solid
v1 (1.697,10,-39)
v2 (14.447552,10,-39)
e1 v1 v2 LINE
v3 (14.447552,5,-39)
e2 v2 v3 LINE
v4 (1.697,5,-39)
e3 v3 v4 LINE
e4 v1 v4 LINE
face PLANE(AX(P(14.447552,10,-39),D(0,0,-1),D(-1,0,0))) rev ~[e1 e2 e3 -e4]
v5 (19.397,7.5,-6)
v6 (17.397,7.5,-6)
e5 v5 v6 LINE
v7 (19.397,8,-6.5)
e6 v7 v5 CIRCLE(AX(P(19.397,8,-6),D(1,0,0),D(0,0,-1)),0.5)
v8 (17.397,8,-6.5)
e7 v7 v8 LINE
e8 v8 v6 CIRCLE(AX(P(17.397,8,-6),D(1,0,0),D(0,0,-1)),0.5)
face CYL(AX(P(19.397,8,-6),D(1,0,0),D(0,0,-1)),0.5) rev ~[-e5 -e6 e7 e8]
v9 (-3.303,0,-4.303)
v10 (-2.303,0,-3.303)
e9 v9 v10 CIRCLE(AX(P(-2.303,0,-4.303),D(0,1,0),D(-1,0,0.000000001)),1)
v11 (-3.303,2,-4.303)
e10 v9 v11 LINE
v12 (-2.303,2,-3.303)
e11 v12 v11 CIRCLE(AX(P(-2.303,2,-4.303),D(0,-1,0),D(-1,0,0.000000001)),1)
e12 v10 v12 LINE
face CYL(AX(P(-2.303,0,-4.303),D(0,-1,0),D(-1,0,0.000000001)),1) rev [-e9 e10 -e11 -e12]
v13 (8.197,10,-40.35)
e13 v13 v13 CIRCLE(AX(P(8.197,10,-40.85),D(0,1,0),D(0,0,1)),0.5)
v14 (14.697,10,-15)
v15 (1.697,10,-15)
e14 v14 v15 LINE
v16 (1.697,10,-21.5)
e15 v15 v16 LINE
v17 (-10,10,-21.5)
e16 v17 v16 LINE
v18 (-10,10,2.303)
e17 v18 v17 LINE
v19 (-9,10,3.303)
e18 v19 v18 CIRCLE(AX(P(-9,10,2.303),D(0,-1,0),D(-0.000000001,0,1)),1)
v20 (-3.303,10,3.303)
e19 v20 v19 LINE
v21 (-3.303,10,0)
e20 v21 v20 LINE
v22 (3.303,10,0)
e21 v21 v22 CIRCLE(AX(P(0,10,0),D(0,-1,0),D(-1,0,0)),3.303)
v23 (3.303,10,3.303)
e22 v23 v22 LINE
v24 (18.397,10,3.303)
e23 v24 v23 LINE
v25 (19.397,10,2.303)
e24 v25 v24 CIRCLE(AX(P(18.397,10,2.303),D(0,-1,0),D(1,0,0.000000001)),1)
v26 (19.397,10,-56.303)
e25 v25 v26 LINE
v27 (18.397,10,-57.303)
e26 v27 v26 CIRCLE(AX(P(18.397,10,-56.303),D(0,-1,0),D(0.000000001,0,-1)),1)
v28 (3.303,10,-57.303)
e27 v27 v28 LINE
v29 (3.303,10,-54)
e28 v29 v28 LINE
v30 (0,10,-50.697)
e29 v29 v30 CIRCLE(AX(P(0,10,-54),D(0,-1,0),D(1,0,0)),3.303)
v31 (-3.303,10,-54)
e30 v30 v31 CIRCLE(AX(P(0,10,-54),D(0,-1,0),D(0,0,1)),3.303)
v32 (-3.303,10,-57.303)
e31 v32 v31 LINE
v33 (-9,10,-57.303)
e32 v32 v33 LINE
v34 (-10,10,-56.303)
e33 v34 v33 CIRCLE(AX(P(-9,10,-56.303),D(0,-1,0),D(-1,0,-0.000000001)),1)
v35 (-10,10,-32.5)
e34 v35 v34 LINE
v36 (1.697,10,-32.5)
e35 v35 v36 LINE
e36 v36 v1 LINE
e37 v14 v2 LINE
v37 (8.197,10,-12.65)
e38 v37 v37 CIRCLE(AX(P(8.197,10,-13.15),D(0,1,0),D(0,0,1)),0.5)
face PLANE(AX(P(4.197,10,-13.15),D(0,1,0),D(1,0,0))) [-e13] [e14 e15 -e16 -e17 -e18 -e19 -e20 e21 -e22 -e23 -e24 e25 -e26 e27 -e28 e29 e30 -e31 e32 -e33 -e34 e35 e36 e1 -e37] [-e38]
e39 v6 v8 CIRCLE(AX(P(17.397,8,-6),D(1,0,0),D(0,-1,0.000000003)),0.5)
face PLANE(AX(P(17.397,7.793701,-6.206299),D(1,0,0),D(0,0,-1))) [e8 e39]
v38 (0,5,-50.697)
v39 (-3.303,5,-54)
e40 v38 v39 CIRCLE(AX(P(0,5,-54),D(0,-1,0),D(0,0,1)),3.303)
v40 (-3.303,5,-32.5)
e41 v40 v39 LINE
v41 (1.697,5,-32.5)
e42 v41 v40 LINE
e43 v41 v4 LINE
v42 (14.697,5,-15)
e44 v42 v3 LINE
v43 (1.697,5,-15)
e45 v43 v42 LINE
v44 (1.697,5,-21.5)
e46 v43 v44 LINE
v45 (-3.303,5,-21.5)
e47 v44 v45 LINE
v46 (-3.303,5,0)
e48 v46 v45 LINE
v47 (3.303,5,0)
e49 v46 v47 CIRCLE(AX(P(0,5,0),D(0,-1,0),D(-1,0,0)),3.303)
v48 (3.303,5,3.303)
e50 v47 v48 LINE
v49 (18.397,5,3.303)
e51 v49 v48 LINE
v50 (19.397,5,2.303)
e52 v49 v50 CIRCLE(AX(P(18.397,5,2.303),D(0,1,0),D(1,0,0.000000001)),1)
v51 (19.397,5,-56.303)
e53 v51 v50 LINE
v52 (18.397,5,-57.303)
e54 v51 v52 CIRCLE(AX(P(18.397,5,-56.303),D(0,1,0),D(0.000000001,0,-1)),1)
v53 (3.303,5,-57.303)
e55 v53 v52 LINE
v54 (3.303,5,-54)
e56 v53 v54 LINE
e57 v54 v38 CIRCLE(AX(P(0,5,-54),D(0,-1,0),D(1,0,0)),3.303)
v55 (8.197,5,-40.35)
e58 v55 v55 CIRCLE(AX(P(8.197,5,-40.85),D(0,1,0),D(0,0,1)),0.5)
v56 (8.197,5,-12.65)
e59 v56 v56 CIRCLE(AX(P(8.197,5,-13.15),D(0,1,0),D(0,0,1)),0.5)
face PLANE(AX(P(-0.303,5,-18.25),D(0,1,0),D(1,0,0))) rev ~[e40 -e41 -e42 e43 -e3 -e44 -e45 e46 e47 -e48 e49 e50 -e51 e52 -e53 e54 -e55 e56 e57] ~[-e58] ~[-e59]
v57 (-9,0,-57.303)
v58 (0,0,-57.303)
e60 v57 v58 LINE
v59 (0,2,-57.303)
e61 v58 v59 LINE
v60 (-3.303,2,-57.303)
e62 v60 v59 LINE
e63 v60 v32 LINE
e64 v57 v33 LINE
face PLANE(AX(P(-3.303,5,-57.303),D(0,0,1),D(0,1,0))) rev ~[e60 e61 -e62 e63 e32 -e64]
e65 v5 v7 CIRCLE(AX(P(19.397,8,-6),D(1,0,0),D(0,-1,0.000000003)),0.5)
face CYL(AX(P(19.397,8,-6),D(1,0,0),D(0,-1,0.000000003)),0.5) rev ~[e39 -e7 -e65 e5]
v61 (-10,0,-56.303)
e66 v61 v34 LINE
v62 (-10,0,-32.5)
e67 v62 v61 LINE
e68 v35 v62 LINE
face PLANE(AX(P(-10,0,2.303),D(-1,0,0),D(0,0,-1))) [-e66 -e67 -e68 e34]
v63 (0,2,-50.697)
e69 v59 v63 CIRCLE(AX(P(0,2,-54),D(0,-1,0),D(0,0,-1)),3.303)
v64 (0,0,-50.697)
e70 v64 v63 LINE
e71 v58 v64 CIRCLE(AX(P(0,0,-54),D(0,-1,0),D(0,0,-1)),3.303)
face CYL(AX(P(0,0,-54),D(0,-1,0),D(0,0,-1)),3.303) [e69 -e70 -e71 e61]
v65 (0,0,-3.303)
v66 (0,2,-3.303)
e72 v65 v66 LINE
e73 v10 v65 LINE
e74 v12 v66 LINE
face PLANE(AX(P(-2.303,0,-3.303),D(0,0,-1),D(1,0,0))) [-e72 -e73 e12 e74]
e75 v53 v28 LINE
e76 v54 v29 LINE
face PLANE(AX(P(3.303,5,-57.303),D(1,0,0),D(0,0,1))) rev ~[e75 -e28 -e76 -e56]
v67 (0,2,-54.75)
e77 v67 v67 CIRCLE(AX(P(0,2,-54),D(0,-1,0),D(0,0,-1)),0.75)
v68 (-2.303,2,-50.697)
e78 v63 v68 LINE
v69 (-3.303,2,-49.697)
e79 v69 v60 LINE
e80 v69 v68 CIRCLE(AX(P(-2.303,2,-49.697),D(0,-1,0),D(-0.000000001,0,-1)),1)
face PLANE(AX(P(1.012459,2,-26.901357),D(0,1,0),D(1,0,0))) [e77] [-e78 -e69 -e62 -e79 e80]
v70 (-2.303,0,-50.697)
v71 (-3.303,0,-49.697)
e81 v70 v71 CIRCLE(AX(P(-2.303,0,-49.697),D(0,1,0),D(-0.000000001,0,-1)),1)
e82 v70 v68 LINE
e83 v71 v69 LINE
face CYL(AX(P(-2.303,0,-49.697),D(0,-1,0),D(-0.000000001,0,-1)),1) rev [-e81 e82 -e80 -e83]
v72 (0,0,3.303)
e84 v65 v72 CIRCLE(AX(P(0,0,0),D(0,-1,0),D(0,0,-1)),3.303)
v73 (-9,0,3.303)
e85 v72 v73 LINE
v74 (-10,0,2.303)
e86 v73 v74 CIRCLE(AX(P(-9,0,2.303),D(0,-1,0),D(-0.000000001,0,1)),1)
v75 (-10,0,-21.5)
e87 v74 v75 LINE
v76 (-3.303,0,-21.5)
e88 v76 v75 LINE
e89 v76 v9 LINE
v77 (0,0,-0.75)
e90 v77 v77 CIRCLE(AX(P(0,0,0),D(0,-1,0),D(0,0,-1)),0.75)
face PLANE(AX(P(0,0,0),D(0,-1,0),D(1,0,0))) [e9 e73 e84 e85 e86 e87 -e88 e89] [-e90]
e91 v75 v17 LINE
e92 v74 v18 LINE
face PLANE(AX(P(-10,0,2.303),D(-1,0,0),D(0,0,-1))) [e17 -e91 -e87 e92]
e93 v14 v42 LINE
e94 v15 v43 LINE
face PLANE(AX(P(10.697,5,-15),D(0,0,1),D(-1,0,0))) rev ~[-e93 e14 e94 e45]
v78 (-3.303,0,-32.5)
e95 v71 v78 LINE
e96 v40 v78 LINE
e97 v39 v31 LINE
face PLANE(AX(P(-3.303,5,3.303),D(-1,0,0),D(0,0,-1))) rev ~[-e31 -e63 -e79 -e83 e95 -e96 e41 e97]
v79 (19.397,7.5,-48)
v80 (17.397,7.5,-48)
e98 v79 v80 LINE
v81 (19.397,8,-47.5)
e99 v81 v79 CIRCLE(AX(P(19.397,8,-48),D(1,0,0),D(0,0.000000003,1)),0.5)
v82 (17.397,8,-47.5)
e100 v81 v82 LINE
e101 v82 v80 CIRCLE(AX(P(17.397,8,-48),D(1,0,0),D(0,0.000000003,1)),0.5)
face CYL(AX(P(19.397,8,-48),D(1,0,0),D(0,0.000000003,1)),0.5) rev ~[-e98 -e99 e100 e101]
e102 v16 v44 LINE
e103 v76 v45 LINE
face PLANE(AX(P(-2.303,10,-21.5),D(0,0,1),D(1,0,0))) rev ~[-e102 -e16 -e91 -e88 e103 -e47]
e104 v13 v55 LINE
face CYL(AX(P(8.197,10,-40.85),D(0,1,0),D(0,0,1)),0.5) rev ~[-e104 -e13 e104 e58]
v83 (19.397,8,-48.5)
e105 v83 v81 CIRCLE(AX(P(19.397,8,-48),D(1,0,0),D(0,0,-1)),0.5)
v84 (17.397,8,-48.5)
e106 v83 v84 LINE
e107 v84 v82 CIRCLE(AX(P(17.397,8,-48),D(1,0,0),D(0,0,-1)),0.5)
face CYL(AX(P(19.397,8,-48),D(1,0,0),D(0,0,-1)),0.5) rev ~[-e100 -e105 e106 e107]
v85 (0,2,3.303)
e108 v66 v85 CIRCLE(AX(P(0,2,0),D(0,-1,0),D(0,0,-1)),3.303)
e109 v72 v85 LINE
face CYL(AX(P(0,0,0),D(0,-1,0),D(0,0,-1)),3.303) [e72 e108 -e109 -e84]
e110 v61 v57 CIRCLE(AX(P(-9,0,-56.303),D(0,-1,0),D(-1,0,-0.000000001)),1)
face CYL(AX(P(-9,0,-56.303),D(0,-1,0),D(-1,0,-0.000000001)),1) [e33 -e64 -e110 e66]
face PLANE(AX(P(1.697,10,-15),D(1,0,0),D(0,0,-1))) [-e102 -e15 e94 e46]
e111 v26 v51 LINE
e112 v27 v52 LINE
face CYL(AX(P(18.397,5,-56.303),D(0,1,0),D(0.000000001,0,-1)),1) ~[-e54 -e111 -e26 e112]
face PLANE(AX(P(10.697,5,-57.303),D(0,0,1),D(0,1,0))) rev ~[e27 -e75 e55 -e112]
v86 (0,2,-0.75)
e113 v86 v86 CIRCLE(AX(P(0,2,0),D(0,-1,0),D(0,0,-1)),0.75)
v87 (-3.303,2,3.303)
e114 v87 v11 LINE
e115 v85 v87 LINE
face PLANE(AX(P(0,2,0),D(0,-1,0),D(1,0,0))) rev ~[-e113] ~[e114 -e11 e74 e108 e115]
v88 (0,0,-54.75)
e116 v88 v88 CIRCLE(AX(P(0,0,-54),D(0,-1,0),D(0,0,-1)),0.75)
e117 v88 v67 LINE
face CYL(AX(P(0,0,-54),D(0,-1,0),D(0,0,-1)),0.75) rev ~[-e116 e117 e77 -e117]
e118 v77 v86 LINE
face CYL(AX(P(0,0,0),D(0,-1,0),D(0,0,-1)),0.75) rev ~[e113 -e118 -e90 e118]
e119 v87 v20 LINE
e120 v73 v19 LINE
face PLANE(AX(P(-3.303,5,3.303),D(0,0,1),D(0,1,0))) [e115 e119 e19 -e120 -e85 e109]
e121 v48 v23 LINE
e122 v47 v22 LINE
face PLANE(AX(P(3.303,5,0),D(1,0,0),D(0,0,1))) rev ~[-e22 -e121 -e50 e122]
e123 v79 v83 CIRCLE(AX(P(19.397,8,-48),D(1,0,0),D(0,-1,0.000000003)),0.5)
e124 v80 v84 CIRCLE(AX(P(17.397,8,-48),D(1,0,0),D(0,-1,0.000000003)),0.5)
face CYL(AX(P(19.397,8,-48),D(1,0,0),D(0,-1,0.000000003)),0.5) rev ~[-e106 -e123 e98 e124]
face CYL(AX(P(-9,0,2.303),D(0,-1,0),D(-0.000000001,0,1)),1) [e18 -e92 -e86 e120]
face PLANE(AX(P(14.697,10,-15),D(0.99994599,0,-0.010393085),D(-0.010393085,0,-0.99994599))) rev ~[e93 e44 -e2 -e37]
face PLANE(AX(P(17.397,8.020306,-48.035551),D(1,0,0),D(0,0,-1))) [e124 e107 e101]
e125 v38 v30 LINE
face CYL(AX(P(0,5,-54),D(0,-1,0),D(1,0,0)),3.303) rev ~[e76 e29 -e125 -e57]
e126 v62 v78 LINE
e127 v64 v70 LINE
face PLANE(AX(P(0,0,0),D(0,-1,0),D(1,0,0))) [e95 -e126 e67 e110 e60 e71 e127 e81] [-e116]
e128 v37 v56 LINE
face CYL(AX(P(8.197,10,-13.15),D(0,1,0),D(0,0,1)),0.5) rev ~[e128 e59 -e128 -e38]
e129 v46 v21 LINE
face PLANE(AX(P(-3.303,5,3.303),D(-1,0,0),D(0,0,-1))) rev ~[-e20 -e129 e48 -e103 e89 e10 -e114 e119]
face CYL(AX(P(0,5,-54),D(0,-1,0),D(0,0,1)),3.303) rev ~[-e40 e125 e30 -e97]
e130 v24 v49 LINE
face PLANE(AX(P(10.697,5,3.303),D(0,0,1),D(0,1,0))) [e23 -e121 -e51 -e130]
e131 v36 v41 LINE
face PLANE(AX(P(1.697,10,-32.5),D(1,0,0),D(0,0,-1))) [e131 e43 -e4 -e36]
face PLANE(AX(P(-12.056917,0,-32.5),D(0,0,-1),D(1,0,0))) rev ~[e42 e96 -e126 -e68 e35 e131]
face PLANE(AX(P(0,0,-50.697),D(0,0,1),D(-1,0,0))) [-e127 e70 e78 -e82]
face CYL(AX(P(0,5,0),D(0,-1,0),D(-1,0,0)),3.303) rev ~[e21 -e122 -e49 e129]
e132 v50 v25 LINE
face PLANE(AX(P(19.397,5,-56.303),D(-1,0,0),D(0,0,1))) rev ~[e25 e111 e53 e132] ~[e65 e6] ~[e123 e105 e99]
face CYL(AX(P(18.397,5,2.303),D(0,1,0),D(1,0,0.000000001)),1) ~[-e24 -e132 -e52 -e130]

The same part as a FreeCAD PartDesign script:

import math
import FreeCAD as App
import Part
import Sketcher

V = App.Vector
Q = App.Units.Quantity

doc = App.newDocument("Part")
body = doc.addObject("PartDesign::Body", "Body")

# Sketch on XZ plane
sketch1 = body.newObject("Sketcher::SketchObject", "Sketch")
sketch1.AttachmentSupport = (doc.getObject("XZ_Plane"), [""])
sketch1.MapMode = "FlatFace"
sketch1.addGeometry([
    Part.LineSegment(V(-2.3, -50.7, 0), V(0, -50.7, 0)),  # 0
    Part.ArcOfCircle(Part.Circle(V(0, -54, 0), V(0, 0, 1), 3.3), math.radians(-90), math.radians(90)),  # 1
    Part.LineSegment(V(0, -57.3, 0), V(-9, -57.3, 0)),  # 2
    Part.ArcOfCircle(Part.Circle(V(-9, -56.3, 0), V(0, 0, 1), 1), math.radians(-180), math.radians(-90)),  # 3
    Part.LineSegment(V(-10, -56.3, 0), V(-10, 2.3, 0)),  # 4
    Part.ArcOfCircle(Part.Circle(V(-9, 2.3, 0), V(0, 0, 1), 1), math.radians(90), math.radians(180)),  # 5
    Part.LineSegment(V(-9, 3.3, 0), V(0, 3.3, 0)),  # 6
    Part.ArcOfCircle(Part.Circle(V(0, 0, 0), V(0, 0, 1), 3.3), math.radians(-90), math.radians(90)),  # 7
    Part.LineSegment(V(0, -3.3, 0), V(-2.3, -3.3, 0)),  # 8
    Part.ArcOfCircle(Part.Circle(V(-2.3, -4.3, 0), V(0, 0, 1), 1), math.radians(90), math.radians(180)),  # 9
    Part.LineSegment(V(-3.3, -4.3, 0), V(-3.3, -49.7, 0)),  # 10
    Part.ArcOfCircle(Part.Circle(V(-2.3, -49.7, 0), V(0, 0, 1), 1), math.radians(-180), math.radians(-90)),  # 11
    Part.Circle(V(0, 0, 0), V(0, 0, 1), 1.5),  # 12
    Part.Circle(V(0, -54, 0), V(0, 0, 1), 1.5),  # 13
], False)
sketch1.addConstraint([
    Sketcher.Constraint("Tangent", 0, 2, 1, 2),
    Sketcher.Constraint("Tangent", 1, 1, 2, 1),
    Sketcher.Constraint("Tangent", 2, 2, 3, 2),
    Sketcher.Constraint("Tangent", 3, 1, 4, 1),
    Sketcher.Constraint("Tangent", 4, 2, 5, 2),
    Sketcher.Constraint("Tangent", 5, 1, 6, 1),
    Sketcher.Constraint("Tangent", 6, 2, 7, 2),
    Sketcher.Constraint("Tangent", 7, 1, 8, 1),
    Sketcher.Constraint("Tangent", 8, 2, 9, 1),
    Sketcher.Constraint("Tangent", 9, 2, 10, 1),
    Sketcher.Constraint("Tangent", 10, 2, 11, 1),
    Sketcher.Constraint("Tangent", 11, 2, 0, 1),
    Sketcher.Constraint("Horizontal", 0),
    Sketcher.Constraint("Horizontal", 2),
    Sketcher.Constraint("Vertical", 4),
    Sketcher.Constraint("Horizontal", 6),
    Sketcher.Constraint("Horizontal", 8),
    Sketcher.Constraint("Vertical", 10),
    Sketcher.Constraint("Coincident", 7, 3, -1, 1),
    Sketcher.Constraint("Coincident", 12, 3, -1, 1),
    Sketcher.Constraint("Coincident", 13, 3, 1, 3),
    Sketcher.Constraint("Equal", 3, 5),
    Sketcher.Constraint("Equal", 1, 7),
    Sketcher.Constraint("Equal", 5, 9),
    Sketcher.Constraint("Equal", 9, 11),
    Sketcher.Constraint("Equal", 12, 13),
    Sketcher.Constraint("PointOnObject", 1, 3, -2),
    Sketcher.Constraint("Diameter", 12, Q("3 mm")),
    Sketcher.Constraint("Radius", 3, Q("1 mm")),
    Sketcher.Constraint("DistanceX", 2, 2, 2, 1, Q("9 mm")),
    Sketcher.Constraint("DistanceY", 1, 3, -1, 1, Q("54 mm")),
    Sketcher.Constraint("Radius", 1, Q("3.303 mm")),
    Sketcher.Constraint("DistanceX", 0, 1, 0, 2, Q("2.303 mm")),
])
pad1 = body.newObject("PartDesign::Pad", "Pad")
pad1.Profile = sketch1
pad1.Length = 10
pad1.Reversed = True

# Sketch on XZ plane
sketch2 = body.newObject("Sketcher::SketchObject", "Sketch001")
sketch2.AttachmentSupport = (doc.getObject("XZ_Plane"), [""])
sketch2.MapMode = "FlatFace"
sketch2.AttachmentOffset = App.Placement(V(0, 0, -10), App.Rotation())
sketch2.addGeometry([
    Part.LineSegment(V(-3, -60, 0), V(-3, 6, 0)),
    Part.LineSegment(V(-3, 6, 0), V(5, 6, 0)),
    Part.LineSegment(V(5, 6, 0), V(5, -60, 0)),
    Part.LineSegment(V(5, -60, 0), V(-3, -60, 0)),
], False)
sketch2.addConstraint([
    Sketcher.Constraint("Coincident", 0, 2, 1, 1),
    Sketcher.Constraint("Coincident", 1, 2, 2, 1),
    Sketcher.Constraint("Coincident", 2, 2, 3, 1),
    Sketcher.Constraint("Coincident", 3, 2, 0, 1),
    Sketcher.Constraint("Vertical", 0),
    Sketcher.Constraint("Horizontal", 1),
    Sketcher.Constraint("Vertical", 2),
    Sketcher.Constraint("Horizontal", 3),
    Sketcher.Constraint("DistanceX", 0, 2, -1, 1, Q("3.303 mm")),
    Sketcher.Constraint("DistanceX", 1, 1, 1, 2, Q("8.630919 mm")),
    Sketcher.Constraint("DistanceY", 0, 1, 0, 2, Q("65.296695 mm")),
    Sketcher.Constraint("DistanceY", -1, 1, 0, 2, Q("5.746991 mm")),
])
pocket1 = body.newObject("PartDesign::Pocket", "Pocket")
pocket1.Profile = sketch2
pocket1.Length = 8
pocket1.Reversed = True

# Sketch on YZ plane
sketch3 = body.newObject("Sketcher::SketchObject", "Sketch002")
sketch3.AttachmentSupport = (doc.getObject("YZ_Plane"), [""])
sketch3.MapMode = "FlatFace"
sketch3.AttachmentOffset = App.Placement(V(0, 0, -3.303), App.Rotation())
sketch3.addGeometry([
    Part.LineSegment(V(10, 3, 0), V(5, 3, 0)),
    Part.LineSegment(V(5, 3, 0), V(5, -57, 0)),
    Part.LineSegment(V(5, -57, 0), V(10, -57, 0)),
    Part.LineSegment(V(10, -57, 0), V(10, 3, 0)),
], False)
sketch3.addConstraint([
    Sketcher.Constraint("Coincident", 0, 2, 1, 1),
    Sketcher.Constraint("Coincident", 1, 2, 2, 1),
    Sketcher.Constraint("Coincident", 2, 2, 3, 1),
    Sketcher.Constraint("Coincident", 3, 2, 0, 1),
    Sketcher.Constraint("Horizontal", 0),
    Sketcher.Constraint("Vertical", 1),
    Sketcher.Constraint("Horizontal", 2),
    Sketcher.Constraint("Vertical", 3),
    Sketcher.Constraint("DistanceX", 0, 2, 0, 1, Q("5 mm")),
    Sketcher.Constraint("DistanceX", -1, 1, 0, 2, Q("5 mm")),
    Sketcher.Constraint("DistanceY", 1, 2, 1, 1, Q("60.606 mm")),
    Sketcher.Constraint("DistanceY", -1, 1, 0, 2, Q("3.303 mm")),
])
pad2 = body.newObject("PartDesign::Pad", "Pad001")
pad2.Profile = sketch3
pad2.Length = 15

# Sketch on XZ plane
sketch4 = body.newObject("Sketcher::SketchObject", "Sketch003")
sketch4.AttachmentSupport = (doc.getObject("XZ_Plane"), [""])
sketch4.MapMode = "FlatFace"
sketch4.AttachmentOffset = App.Placement(V(0, 0, -10), App.Rotation())
sketch4.addGeometry([
    Part.ArcOfCircle(Part.Circle(V(10.7, -56.3, 0), V(0, 0, 1), 1), math.radians(-90), math.radians(0)),  # 0
    Part.LineSegment(V(11.7, -56.3, 0), V(11.7, -57.3, 0)),  # 1
    Part.LineSegment(V(11.7, -57.3, 0), V(10.7, -57.3, 0)),  # 2
    Part.ArcOfCircle(Part.Circle(V(10.7, 2.3, 0), V(0, 0, 1), 1), math.radians(0), math.radians(90)),  # 3
    Part.LineSegment(V(10.7, 3.3, 0), V(11.7, 3.3, 0)),  # 4
    Part.LineSegment(V(11.7, 3.3, 0), V(11.7, 2.3, 0)),  # 5
], False)
sketch4.addConstraint([
    Sketcher.Constraint("Tangent", 0, 2, 1, 1),
    Sketcher.Constraint("Coincident", 1, 2, 2, 1),
    Sketcher.Constraint("Tangent", 2, 2, 0, 1),
    Sketcher.Constraint("Tangent", 3, 2, 4, 1),
    Sketcher.Constraint("Coincident", 4, 2, 5, 1),
    Sketcher.Constraint("Tangent", 5, 2, 3, 1),
    Sketcher.Constraint("Vertical", 1),
    Sketcher.Constraint("Horizontal", 2),
    Sketcher.Constraint("Horizontal", 4),
    Sketcher.Constraint("Vertical", 5),
    Sketcher.Constraint("Equal", 0, 3),
    Sketcher.Constraint("Vertical", 0, 3, 3, 3),
    Sketcher.Constraint("Radius", 0, Q("1 mm")),
    Sketcher.Constraint("DistanceX", -1, 1, 0, 3, Q("10.697 mm")),
    Sketcher.Constraint("DistanceY", 0, 3, -1, 1, Q("56.303 mm")),
    Sketcher.Constraint("DistanceY", -1, 1, 3, 3, Q("2.303 mm")),
])
pocket2 = body.newObject("PartDesign::Pocket", "Pocket001")
pocket2.Profile = sketch4
pocket2.Length = 15
pocket2.Reversed = True

# Sketch on XZ plane
sketch5 = body.newObject("Sketcher::SketchObject", "Sketch004")
sketch5.AttachmentSupport = (doc.getObject("XZ_Plane"), [""])
sketch5.MapMode = "FlatFace"
sketch5.AttachmentOffset = App.Placement(V(0, 0, -5), App.Rotation())
sketch5.addGeometry([
    Part.LineSegment(V(-3.3, 3.3, 0), V(-3.3, 0, 0)),  # 0
    Part.ArcOfCircle(Part.Circle(V(0, 0, 0), V(0, 0, 1), 3.3), math.radians(180), math.radians(360)),  # 1
    Part.LineSegment(V(3.3, 0, 0), V(3.3, 3.3, 0)),  # 2
    Part.LineSegment(V(3.3, 3.3, 0), V(-3.3, 3.3, 0)),  # 3
    Part.ArcOfCircle(Part.Circle(V(0, -54, 0), V(0, 0, 1), 3.3), math.radians(90), math.radians(180)),  # 4
    Part.LineSegment(V(-3.3, -54, 0), V(-3.3, -57.3, 0)),  # 5
    Part.LineSegment(V(-3.3, -57.3, 0), V(3.3, -57.3, 0)),  # 6
    Part.LineSegment(V(3.3, -57.3, 0), V(3.3, -54, 0)),  # 7
    Part.ArcOfCircle(Part.Circle(V(0, -54, 0), V(0, 0, 1), 3.3), math.radians(0), math.radians(90)),  # 8
], False)
sketch5.addConstraint([
    Sketcher.Constraint("Tangent", 0, 2, 1, 1),
    Sketcher.Constraint("Tangent", 1, 2, 2, 1),
    Sketcher.Constraint("Coincident", 2, 2, 3, 1),
    Sketcher.Constraint("Coincident", 3, 2, 0, 1),
    Sketcher.Constraint("Tangent", 4, 2, 5, 1),
    Sketcher.Constraint("Coincident", 5, 2, 6, 1),
    Sketcher.Constraint("Coincident", 6, 2, 7, 1),
    Sketcher.Constraint("Tangent", 7, 2, 8, 1),
    Sketcher.Constraint("Tangent", 8, 2, 4, 1),
    Sketcher.Constraint("Vertical", 0),
    Sketcher.Constraint("Vertical", 2),
    Sketcher.Constraint("Horizontal", 3),
    Sketcher.Constraint("Vertical", 5),
    Sketcher.Constraint("Horizontal", 6),
    Sketcher.Constraint("Vertical", 7),
    Sketcher.Constraint("Coincident", 1, 3, -1, 1),
    Sketcher.Constraint("Equal", 1, 4),
    Sketcher.Constraint("Equal", 4, 8),
    Sketcher.Constraint("PointOnObject", 4, 3, -2),
    Sketcher.Constraint("PointOnObject", 8, 2, -2),
    Sketcher.Constraint("Equal", 2, 5),
    Sketcher.Constraint("DistanceY", 4, 3, -1, 1, Q("54 mm")),
    Sketcher.Constraint("Radius", 1, Q("3.303 mm")),
    Sketcher.Constraint("DistanceY", 0, 2, 0, 1, Q("3.303 mm")),
])
pocket3 = body.newObject("PartDesign::Pocket", "Pocket002")
pocket3.Profile = sketch5
pocket3.Length = 15

# Sketch on XZ plane
sketch6 = body.newObject("Sketcher::SketchObject", "Sketch005")
sketch6.AttachmentSupport = (doc.getObject("XZ_Plane"), [""])
sketch6.MapMode = "FlatFace"
sketch6.AttachmentOffset = App.Placement(V(0, 0, -5), App.Rotation())
sketch6.addGeometry([
    Part.LineSegment(V(-2, -39, 0), V(11, -39, 0)),
    Part.LineSegment(V(11, -39, 0), V(11, -15, 0)),
    Part.LineSegment(V(11, -15, 0), V(-2, -15, 0)),
    Part.LineSegment(V(-2, -15, 0), V(-2, -39, 0)),
], False)
sketch6.addConstraint([
    Sketcher.Constraint("Coincident", 0, 2, 1, 1),
    Sketcher.Constraint("Coincident", 1, 2, 2, 1),
    Sketcher.Constraint("Coincident", 2, 2, 3, 1),
    Sketcher.Constraint("Coincident", 3, 2, 0, 1),
    Sketcher.Constraint("Horizontal", 0),
    Sketcher.Constraint("Vertical", 1),
    Sketcher.Constraint("Horizontal", 2),
    Sketcher.Constraint("Vertical", 3),
    Sketcher.Constraint("DistanceX", 0, 1, 0, 2, Q("13 mm")),
    Sketcher.Constraint("DistanceY", 1, 1, 1, 2, Q("24 mm")),
    Sketcher.Constraint("DistanceY", 0, 2, -1, 1, Q("39 mm")),
    Sketcher.Constraint("DistanceX", -1, 1, 0, 2, Q("10.697 mm")),
])
pocket4 = body.newObject("PartDesign::Pocket", "Pocket003")
pocket4.Profile = sketch6
pocket4.Length = 15

# Sketch on YZ plane
sketch7 = body.newObject("Sketcher::SketchObject", "Sketch006")
sketch7.AttachmentSupport = (doc.getObject("YZ_Plane"), [""])
sketch7.MapMode = "FlatFace"
sketch7.AttachmentOffset = App.Placement(V(0, 0, 11.697), App.Rotation())
sketch7.addGeometry([
    Part.LineSegment(V(10, 3, 0), V(5, 3, 0)),
    Part.LineSegment(V(5, 3, 0), V(5, -57, 0)),
    Part.LineSegment(V(5, -57, 0), V(10, -57, 0)),
    Part.LineSegment(V(10, -57, 0), V(10, 3, 0)),
], False)
sketch7.addConstraint([
    Sketcher.Constraint("Coincident", 0, 2, 1, 1),
    Sketcher.Constraint("Coincident", 1, 2, 2, 1),
    Sketcher.Constraint("Coincident", 2, 2, 3, 1),
    Sketcher.Constraint("Coincident", 3, 2, 0, 1),
    Sketcher.Constraint("Horizontal", 0),
    Sketcher.Constraint("Vertical", 1),
    Sketcher.Constraint("Horizontal", 2),
    Sketcher.Constraint("Vertical", 3),
    Sketcher.Constraint("DistanceX", 0, 2, 0, 1, Q("5 mm")),
    Sketcher.Constraint("DistanceX", -1, 1, 0, 2, Q("5 mm")),
    Sketcher.Constraint("DistanceY", 1, 2, 1, 1, Q("60.606 mm")),
    Sketcher.Constraint("DistanceY", -1, 1, 0, 2, Q("3.303 mm")),
])
pad3 = body.newObject("PartDesign::Pad", "Pad002")
pad3.Profile = sketch7
pad3.Type = "TwoLengths"
pad3.Length = 7.7
pad3.Length2 = 1

# Sketch on XZ plane
sketch8 = body.newObject("Sketcher::SketchObject", "Sketch007")
sketch8.AttachmentSupport = (doc.getObject("XZ_Plane"), [""])
sketch8.MapMode = "FlatFace"
sketch8.AttachmentOffset = App.Placement(V(0, 0, -10), App.Rotation())
sketch8.addGeometry([
    Part.ArcOfCircle(Part.Circle(V(18.4, -56.3, 0), V(0, 0, 1), 1), math.radians(-90), math.radians(0)),  # 0
    Part.LineSegment(V(19.4, -56.3, 0), V(19.4, -57.3, 0)),  # 1
    Part.LineSegment(V(19.4, -57.3, 0), V(18.4, -57.3, 0)),  # 2
    Part.ArcOfCircle(Part.Circle(V(18.4, 2.3, 0), V(0, 0, 1), 1), math.radians(0), math.radians(90)),  # 3
    Part.LineSegment(V(18.4, 3.3, 0), V(19.4, 3.3, 0)),  # 4
    Part.LineSegment(V(19.4, 3.3, 0), V(19.4, 2.3, 0)),  # 5
], False)
sketch8.addConstraint([
    Sketcher.Constraint("Tangent", 0, 2, 1, 1),
    Sketcher.Constraint("Coincident", 1, 2, 2, 1),
    Sketcher.Constraint("Tangent", 2, 2, 0, 1),
    Sketcher.Constraint("Tangent", 3, 2, 4, 1),
    Sketcher.Constraint("Coincident", 4, 2, 5, 1),
    Sketcher.Constraint("Tangent", 5, 2, 3, 1),
    Sketcher.Constraint("Vertical", 1),
    Sketcher.Constraint("Horizontal", 2),
    Sketcher.Constraint("Horizontal", 4),
    Sketcher.Constraint("Vertical", 5),
    Sketcher.Constraint("Equal", 0, 3),
    Sketcher.Constraint("Vertical", 0, 3, 3, 3),
    Sketcher.Constraint("Radius", 0, Q("1 mm")),
    Sketcher.Constraint("DistanceX", -1, 1, 0, 3, Q("18.397 mm")),
    Sketcher.Constraint("DistanceY", 0, 3, -1, 1, Q("56.303 mm")),
    Sketcher.Constraint("DistanceY", -1, 1, 3, 3, Q("2.303 mm")),
])
pocket5 = body.newObject("PartDesign::Pocket", "Pocket004")
pocket5.Profile = sketch8
pocket5.Length = 7.7
pocket5.Reversed = True

# Sketch on XZ plane
sketch9 = body.newObject("Sketcher::SketchObject", "Sketch008")
sketch9.AttachmentSupport = (doc.getObject("XZ_Plane"), [""])
sketch9.MapMode = "FlatFace"
sketch9.AttachmentOffset = App.Placement(V(0, 0, -5), App.Rotation())
sketch9.addGeometry([
    Part.LineSegment(V(17.4, 2.3, 0), V(17.4, -56.3, 0)),  # 0
    Part.ArcOfCircle(Part.Circle(V(18.4, -56.3, 0), V(0, 0, 1), 1), math.radians(-180), math.radians(-90)),  # 1
    Part.ArcOfCircle(Part.Circle(V(18.4, -56.3, 0), V(0, 0, 1), 1), math.radians(-90), math.radians(0)),  # 2
    Part.LineSegment(V(19.4, -56.3, 0), V(19.4, 2.3, 0)),  # 3
    Part.ArcOfCircle(Part.Circle(V(18.4, 2.3, 0), V(0, 0, 1), 1), math.radians(0), math.radians(90)),  # 4
    Part.ArcOfCircle(Part.Circle(V(18.4, 2.3, 0), V(0, 0, 1), 1), math.radians(90), math.radians(180)),  # 5
], False)
sketch9.addConstraint([
    Sketcher.Constraint("Tangent", 0, 2, 1, 1),
    Sketcher.Constraint("Tangent", 1, 2, 2, 1),
    Sketcher.Constraint("Tangent", 2, 2, 3, 1),
    Sketcher.Constraint("Tangent", 3, 2, 4, 1),
    Sketcher.Constraint("Tangent", 4, 2, 5, 1),
    Sketcher.Constraint("Tangent", 5, 2, 0, 1),
    Sketcher.Constraint("Vertical", 0),
    Sketcher.Constraint("Vertical", 3),
    Sketcher.Constraint("Equal", 1, 2),
    Sketcher.Constraint("Equal", 2, 4),
    Sketcher.Constraint("Vertical", 5, 3, 1, 2),
    Sketcher.Constraint("Vertical", 1, 2, 4, 2),
    Sketcher.Constraint("Radius", 1, Q("1 mm")),
    Sketcher.Constraint("DistanceY", 0, 2, 0, 1, Q("58.606 mm")),
    Sketcher.Constraint("DistanceX", -1, 1, 1, 3, Q("18.397 mm")),
    Sketcher.Constraint("DistanceY", 1, 3, -1, 1, Q("56.303 mm")),
])
pad4 = body.newObject("PartDesign::Pad", "Pad003")
pad4.Profile = sketch9
pad4.Length = 16

# Sketch on XZ plane
sketch10 = body.newObject("Sketcher::SketchObject", "Sketch009")
sketch10.AttachmentSupport = (doc.getObject("XZ_Plane"), [""])
sketch10.MapMode = "FlatFace"
sketch10.AttachmentOffset = App.Placement(V(0, 0, -10), App.Rotation())
sketch10.addGeometry([
    Part.Circle(V(4.2, -13.2, 0), V(0, 0, 1), 1.5),
    Part.Circle(V(4.2, -40.9, 0), V(0, 0, 1), 1.5),
], False)
sketch10.addConstraint([
    Sketcher.Constraint("Equal", 0, 1),
    Sketcher.Constraint("Vertical", 0, 3, 1, 3),
    Sketcher.Constraint("Diameter", 0, Q("3 mm")),
    Sketcher.Constraint("DistanceY", 1, 3, 0, 3, Q("27.7 mm")),
    Sketcher.Constraint("DistanceY", 0, 3, -1, 1, Q("13.15 mm")),
    Sketcher.Constraint("DistanceX", -1, 1, 0, 3, Q("4.197 mm")),
])
pocket6 = body.newObject("PartDesign::Pocket", "Pocket005")
pocket6.Profile = sketch10
pocket6.Length = 10.5
pocket6.Reversed = True

# Sketch on YZ plane
sketch11 = body.newObject("Sketcher::SketchObject", "Sketch010")
sketch11.AttachmentSupport = (doc.getObject("YZ_Plane"), [""])
sketch11.MapMode = "FlatFace"
sketch11.AttachmentOffset = App.Placement(V(0, 0, 19.397), App.Rotation())
sketch11.addGeometry([
    Part.ArcOfCircle(Part.Circle(V(8, -6, 0), V(0, 0, 1), 0.5), math.radians(180), math.radians(270)),  # 0
    Part.ArcOfCircle(Part.Circle(V(8, -6, 0), V(0, 0, 1), 0.5), math.radians(-90), math.radians(180)),  # 1
    Part.ArcOfCircle(Part.Circle(V(-9, -6, 0), V(0, 0, 1), 0.5), math.radians(0), math.radians(270)),  # 2
    Part.ArcOfCircle(Part.Circle(V(-9, -6, 0), V(0, 0, 1), 0.5), math.radians(-90), math.radians(0)),  # 3
    Part.ArcOfCircle(Part.Circle(V(-9, -48, 0), V(0, 0, 1), 0.5), math.radians(0), math.radians(90)),  # 4
    Part.ArcOfCircle(Part.Circle(V(-9, -48, 0), V(0, 0, 1), 0.5), math.radians(90), math.radians(270)),  # 5
    Part.ArcOfCircle(Part.Circle(V(-9, -48, 0), V(0, 0, 1), 0.5), math.radians(-90), math.radians(0)),  # 6
    Part.ArcOfCircle(Part.Circle(V(8, -48, 0), V(0, 0, 1), 0.5), math.radians(-90), math.radians(90)),  # 7
    Part.ArcOfCircle(Part.Circle(V(8, -48, 0), V(0, 0, 1), 0.5), math.radians(90), math.radians(180)),  # 8
    Part.ArcOfCircle(Part.Circle(V(8, -48, 0), V(0, 0, 1), 0.5), math.radians(180), math.radians(270)),  # 9
], False)
sketch11.addConstraint([
    Sketcher.Constraint("Tangent", 0, 1, 1, 2),
    Sketcher.Constraint("Coincident", 1, 1, 0, 2),
    Sketcher.Constraint("Tangent", 2, 1, 3, 2),
    Sketcher.Constraint("Coincident", 3, 1, 2, 2),
    Sketcher.Constraint("Tangent", 4, 2, 5, 1),
    Sketcher.Constraint("Tangent", 5, 2, 6, 1),
    Sketcher.Constraint("Tangent", 6, 2, 4, 1),
    Sketcher.Constraint("Tangent", 7, 2, 8, 1),
    Sketcher.Constraint("Tangent", 8, 2, 9, 1),
    Sketcher.Constraint("Tangent", 9, 2, 7, 1),
    Sketcher.Constraint("Equal", 1, 2),
    Sketcher.Constraint("Equal", 3, 4),
    Sketcher.Constraint("Equal", 6, 7),
    Sketcher.Constraint("Horizontal", 1, 3, 2, 3),
    Sketcher.Constraint("Horizontal", 6, 3, 7, 3),
    Sketcher.Constraint("Horizontal", 3, 3, 0, 1),
    Sketcher.Constraint("Horizontal", 0, 1, 2, 1),
    Sketcher.Constraint("Horizontal", 9, 3, 6, 2),
    Sketcher.Constraint("Horizontal", 6, 2, 8, 2),
    Sketcher.Constraint("Vertical", 3, 3, 4, 3),
    Sketcher.Constraint("Vertical", 1, 3, 7, 3),
    Sketcher.Constraint("Vertical", 9, 3, 1, 1),
    Sketcher.Constraint("Vertical", 6, 3, 3, 1),
    Sketcher.Constraint("Vertical", 3, 1, 4, 2),
    Sketcher.Constraint("Vertical", 4, 2, 5, 2),
    Sketcher.Constraint("Vertical", 1, 1, 7, 2),
    Sketcher.Constraint("Vertical", 7, 2, 9, 2),
    Sketcher.Constraint("Radius", 0, Q("0.5 mm")),
    Sketcher.Constraint("DistanceX", -1, 1, 0, 3, Q("8 mm")),
    Sketcher.Constraint("DistanceY", 0, 3, -1, 1, Q("6 mm")),
    Sketcher.Constraint("DistanceX", 2, 3, -1, 1, Q("9 mm")),
    Sketcher.Constraint("DistanceY", 4, 3, -1, 1, Q("48 mm")),
])
pocket7 = body.newObject("PartDesign::Pocket", "Pocket006")
pocket7.Profile = sketch11
pocket7.Length = 2

# Sketch on XZ plane
sketch12 = body.newObject("Sketcher::SketchObject", "Sketch011")
sketch12.AttachmentSupport = (doc.getObject("XZ_Plane"), [""])
sketch12.MapMode = "FlatFace"
sketch12.AttachmentOffset = App.Placement(V(0, 0, 11), App.Rotation())
sketch12.addGeometry([
    Part.LineSegment(V(14, 5, 0), V(14, -60, 0)),
    Part.LineSegment(V(14, -60, 0), V(30, -60, 0)),
    Part.LineSegment(V(30, -60, 0), V(30, 5, 0)),
    Part.LineSegment(V(30, 5, 0), V(14, 5, 0)),
], False)
sketch12.addConstraint([
    Sketcher.Constraint("Coincident", 0, 2, 1, 1),
    Sketcher.Constraint("Coincident", 1, 2, 2, 1),
    Sketcher.Constraint("Coincident", 2, 2, 3, 1),
    Sketcher.Constraint("Coincident", 3, 2, 0, 1),
    Sketcher.Constraint("Vertical", 0),
    Sketcher.Constraint("Horizontal", 1),
    Sketcher.Constraint("Vertical", 2),
    Sketcher.Constraint("Horizontal", 3),
    Sketcher.Constraint("DistanceX", 1, 1, 1, 2, Q("16.187709 mm")),
    Sketcher.Constraint("DistanceY", 0, 2, 0, 1, Q("64.993651 mm")),
    Sketcher.Constraint("DistanceX", -1, 1, 0, 2, Q("14.102695 mm")),
    Sketcher.Constraint("DistanceY", 0, 2, -1, 1, Q("60.264786 mm")),
])
pocket8 = body.newObject("PartDesign::Pocket", "Pocket007")
pocket8.Profile = sketch12
pocket8.Length = 16

# Sketch on XZ plane
sketch13 = body.newObject("Sketcher::SketchObject", "Sketch012")
sketch13.AttachmentSupport = (doc.getObject("XZ_Plane"), [""])
sketch13.MapMode = "FlatFace"
sketch13.AttachmentOffset = App.Placement(V(0, 0, -10), App.Rotation())
sketch13.addGeometry([
    Part.Circle(V(4.2, -13.2, 0), V(0, 0, 1), 1.5),
    Part.Circle(V(4.2, -13.2, 0), V(0, 0, 1), 0.5),
    Part.Circle(V(4.2, -40.9, 0), V(0, 0, 1), 1.5),
    Part.Circle(V(4.2, -40.9, 0), V(0, 0, 1), 0.5),
], False)
sketch13.addConstraint([
    Sketcher.Constraint("Coincident", 1, 3, 0, 3),
    Sketcher.Constraint("Coincident", 3, 3, 2, 3),
    Sketcher.Constraint("Equal", 0, 2),
    Sketcher.Constraint("Equal", 1, 3),
    Sketcher.Constraint("Vertical", 1, 3, 2, 3),
    Sketcher.Constraint("Diameter", 0, Q("3 mm")),
    Sketcher.Constraint("Diameter", 1, Q("1 mm")),
    Sketcher.Constraint("DistanceY", 2, 3, 0, 3, Q("27.7 mm")),
    Sketcher.Constraint("DistanceY", 0, 3, -1, 1, Q("13.15 mm")),
    Sketcher.Constraint("DistanceX", -1, 1, 0, 3, Q("4.197 mm")),
])
pad5 = body.newObject("PartDesign::Pad", "Pad004")
pad5.Profile = sketch13
pad5.Length = 5

# Sketch on XZ plane
sketch14 = body.newObject("Sketcher::SketchObject", "Sketch013")
sketch14.AttachmentSupport = (doc.getObject("XZ_Plane"), [""])
sketch14.MapMode = "FlatFace"
sketch14.addGeometry([
    Part.Circle(V(0, 0, 0), V(0, 0, 1), 1.5),
    Part.Circle(V(0, 0, 0), V(0, 0, 1), 0.8),
    Part.Circle(V(0, -54, 0), V(0, 0, 1), 1.5),
    Part.Circle(V(0, -54, 0), V(0, 0, 1), 0.8),
], False)
sketch14.addConstraint([
    Sketcher.Constraint("Coincident", 0, 3, -1, 1),
    Sketcher.Constraint("Coincident", 1, 3, -1, 1),
    Sketcher.Constraint("Coincident", 3, 3, 2, 3),
    Sketcher.Constraint("Equal", 0, 2),
    Sketcher.Constraint("Equal", 1, 3),
    Sketcher.Constraint("PointOnObject", 2, 3, -2),
    Sketcher.Constraint("Diameter", 0, Q("3 mm")),
    Sketcher.Constraint("Diameter", 1, Q("1.5 mm")),
    Sketcher.Constraint("DistanceY", 2, 3, -1, 1, Q("54 mm")),
])
pad6 = body.newObject("PartDesign::Pad", "Pad005")
pad6.Profile = sketch14
pad6.Length = 2
pad6.Reversed = True

# Sketch on XZ plane
sketch15 = body.newObject("Sketcher::SketchObject", "Sketch014")
sketch15.AttachmentSupport = (doc.getObject("XZ_Plane"), [""])
sketch15.MapMode = "FlatFace"
sketch15.addGeometry([
    Part.LineSegment(V(0, -32, 0), V(0, -22, 0)),
    Part.LineSegment(V(0, -22, 0), V(-12, -22, 0)),
    Part.LineSegment(V(-12, -22, 0), V(-12, -32, 0)),
    Part.LineSegment(V(-12, -32, 0), V(0, -32, 0)),
], False)
sketch15.addConstraint([
    Sketcher.Constraint("Coincident", 0, 2, 1, 1),
    Sketcher.Constraint("Coincident", 1, 2, 2, 1),
    Sketcher.Constraint("Coincident", 2, 2, 3, 1),
    Sketcher.Constraint("Coincident", 3, 2, 0, 1),
    Sketcher.Constraint("Vertical", 0),
    Sketcher.Constraint("Horizontal", 1),
    Sketcher.Constraint("Vertical", 2),
    Sketcher.Constraint("Horizontal", 3),
    Sketcher.Constraint("PointOnObject", 0, 2, -2),
    Sketcher.Constraint("DistanceY", 0, 1, 0, 2, Q("11 mm")),
    Sketcher.Constraint("DistanceY", 0, 2, -1, 1, Q("21.5 mm")),
    Sketcher.Constraint("DistanceX", 1, 2, 1, 1, Q("12.056917 mm")),
])
pocket9 = body.newObject("PartDesign::Pocket", "Pocket008")
pocket9.Profile = sketch15
pocket9.Length = 15

# Sketch on XZ plane
sketch16 = body.newObject("Sketcher::SketchObject", "Sketch015")
sketch16.AttachmentSupport = (doc.getObject("XZ_Plane"), [""])
sketch16.MapMode = "FlatFace"
sketch16.AttachmentOffset = App.Placement(V(0, 0, -10), App.Rotation())
sketch16.addGeometry([
    Part.LineSegment(V(10.7, -15, 0), V(14.7, -15, 0)),
    Part.LineSegment(V(14.7, -15, 0), V(14.4, -39, 0)),
    Part.LineSegment(V(14.4, -39, 0), V(10.7, -39, 0)),
    Part.LineSegment(V(10.7, -39, 0), V(10.7, -15, 0)),
], False)
sketch16.addConstraint([
    Sketcher.Constraint("Coincident", 0, 2, 1, 1),
    Sketcher.Constraint("Coincident", 1, 2, 2, 1),
    Sketcher.Constraint("Coincident", 2, 2, 3, 1),
    Sketcher.Constraint("Coincident", 3, 2, 0, 1),
    Sketcher.Constraint("Horizontal", 0),
    Sketcher.Constraint("Horizontal", 2),
    Sketcher.Constraint("Vertical", 3),
    Sketcher.Constraint("DistanceX", 0, 1, 0, 2, Q("4 mm")),
    Sketcher.Constraint("DistanceY", 3, 1, 3, 2, Q("24 mm")),
    Sketcher.Constraint("DistanceY", 0, 2, -1, 1, Q("15 mm")),
    Sketcher.Constraint("DistanceX", -1, 1, 0, 2, Q("14.697 mm")),
    Sketcher.Constraint("DistanceX", 2, 2, 2, 1, Q("3.750552 mm")),
])
pocket10 = body.newObject("PartDesign::Pocket", "Pocket009")
pocket10.Profile = sketch16
pocket10.Length = 10
pocket10.Reversed = True

# Sketch on XZ plane
sketch17 = body.newObject("Sketcher::SketchObject", "Sketch016")
sketch17.AttachmentSupport = (doc.getObject("XZ_Plane"), [""])
sketch17.MapMode = "FlatFace"
sketch17.AttachmentOffset = App.Placement(V(0, 0, -10), App.Rotation())
sketch17.addGeometry([
    Part.LineSegment(V(-2.3, -21.5, 0), V(-2.3, -15, 0)),  # 0
    Part.LineSegment(V(-2.3, -15, 0), V(1.7, -15, 0)),  # 1
    Part.LineSegment(V(1.7, -15, 0), V(1.7, -21.5, 0)),  # 2
    Part.LineSegment(V(1.7, -21.5, 0), V(-2.3, -21.5, 0)),  # 3
    Part.LineSegment(V(-2.3, -39, 0), V(-2.3, -32.5, 0)),  # 4
    Part.LineSegment(V(-2.3, -32.5, 0), V(1.7, -32.5, 0)),  # 5
    Part.LineSegment(V(1.7, -32.5, 0), V(1.7, -39, 0)),  # 6
    Part.LineSegment(V(1.7, -39, 0), V(-2.3, -39, 0)),  # 7
], False)
sketch17.addConstraint([
    Sketcher.Constraint("Coincident", 0, 2, 1, 1),
    Sketcher.Constraint("Coincident", 1, 2, 2, 1),
    Sketcher.Constraint("Coincident", 2, 2, 3, 1),
    Sketcher.Constraint("Coincident", 3, 2, 0, 1),
    Sketcher.Constraint("Coincident", 4, 2, 5, 1),
    Sketcher.Constraint("Coincident", 5, 2, 6, 1),
    Sketcher.Constraint("Coincident", 6, 2, 7, 1),
    Sketcher.Constraint("Coincident", 7, 2, 4, 1),
    Sketcher.Constraint("Vertical", 0),
    Sketcher.Constraint("Horizontal", 1),
    Sketcher.Constraint("Vertical", 2),
    Sketcher.Constraint("Horizontal", 3),
    Sketcher.Constraint("Vertical", 4),
    Sketcher.Constraint("Horizontal", 5),
    Sketcher.Constraint("Vertical", 6),
    Sketcher.Constraint("Horizontal", 7),
    Sketcher.Constraint("Vertical", 3, 2, 4, 2),
    Sketcher.Constraint("Vertical", 2, 2, 5, 2),
    Sketcher.Constraint("Equal", 2, 4),
    Sketcher.Constraint("DistanceX", 1, 1, 1, 2, Q("4 mm")),
    Sketcher.Constraint("DistanceY", 0, 1, 0, 2, Q("6.5 mm")),
    Sketcher.Constraint("DistanceY", 0, 2, -1, 1, Q("15 mm")),
    Sketcher.Constraint("DistanceY", 6, 2, -1, 1, Q("39 mm")),
    Sketcher.Constraint("DistanceX", 0, 2, -1, 1, Q("2.303 mm")),
])
pad7 = body.newObject("PartDesign::Pad", "Pad006")
pad7.Profile = sketch17
pad7.Length = 5

# Sketch on XZ plane
sketch18 = body.newObject("Sketcher::SketchObject", "Sketch017")
sketch18.AttachmentSupport = (doc.getObject("XZ_Plane"), [""])
sketch18.MapMode = "FlatFace"
sketch18.AttachmentOffset = App.Placement(V(0, 0, -10), App.Rotation())
sketch18.addGeometry([
    Part.Circle(V(8.2, -13.2, 0), V(0, 0, 1), 0.5),
    Part.Circle(V(8.2, -40.9, 0), V(0, 0, 1), 0.5),
], False)
sketch18.addConstraint([
    Sketcher.Constraint("Equal", 0, 1),
    Sketcher.Constraint("Vertical", 0, 3, 1, 3),
    Sketcher.Constraint("Diameter", 0, Q("1 mm")),
    Sketcher.Constraint("DistanceY", 1, 3, 0, 3, Q("27.7 mm")),
    Sketcher.Constraint("DistanceY", 0, 3, -1, 1, Q("13.15 mm")),
    Sketcher.Constraint("DistanceX", -1, 1, 0, 3, Q("8.197 mm")),
])
pocket11 = body.newObject("PartDesign::Pocket", "Pocket010")
pocket11.Profile = sketch18
pocket11.Length = 5
pocket11.Reversed = True

# Sketch on XZ plane
sketch19 = body.newObject("Sketcher::SketchObject", "Sketch018")
sketch19.AttachmentSupport = (doc.getObject("XZ_Plane"), [""])
sketch19.MapMode = "FlatFace"
sketch19.AttachmentOffset = App.Placement(V(0, 0, -10), App.Rotation())
sketch19.addGeometry([
    Part.Circle(V(4.2, -13.2, 0), V(0, 0, 1), 0.5),
    Part.Circle(V(4.2, -40.9, 0), V(0, 0, 1), 0.5),
], False)
sketch19.addConstraint([
    Sketcher.Constraint("Equal", 0, 1),
    Sketcher.Constraint("Vertical", 0, 3, 1, 3),
    Sketcher.Constraint("Diameter", 0, Q("1 mm")),
    Sketcher.Constraint("DistanceY", 1, 3, 0, 3, Q("27.7 mm")),
    Sketcher.Constraint("DistanceY", 0, 3, -1, 1, Q("13.15 mm")),
    Sketcher.Constraint("DistanceX", -1, 1, 0, 3, Q("4.197 mm")),
])
pad8 = body.newObject("PartDesign::Pad", "Pad007")
pad8.Profile = sketch19
pad8.Length = 5

doc.recompute()
